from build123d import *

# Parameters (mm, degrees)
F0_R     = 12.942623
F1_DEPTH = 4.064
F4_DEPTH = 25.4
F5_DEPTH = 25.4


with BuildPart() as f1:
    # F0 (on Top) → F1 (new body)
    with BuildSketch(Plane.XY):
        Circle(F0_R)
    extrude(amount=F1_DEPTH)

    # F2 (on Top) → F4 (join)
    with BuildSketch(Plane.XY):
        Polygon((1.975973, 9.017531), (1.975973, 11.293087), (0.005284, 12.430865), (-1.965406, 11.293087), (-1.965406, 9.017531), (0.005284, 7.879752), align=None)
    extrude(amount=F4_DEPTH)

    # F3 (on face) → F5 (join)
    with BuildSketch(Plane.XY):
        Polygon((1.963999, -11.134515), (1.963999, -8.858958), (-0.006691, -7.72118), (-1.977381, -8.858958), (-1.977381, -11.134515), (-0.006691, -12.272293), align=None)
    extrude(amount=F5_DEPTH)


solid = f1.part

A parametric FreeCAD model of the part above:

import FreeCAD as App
import Part
import Sketcher
from FreeCAD import Vector
Q = App.Units.Quantity


def add_polygon(sketch, points):
    """Adds a closed chain of lines whose ends are joined by coincident constraints."""
    first, n = sketch.GeometryCount, len(points)
    for a, b in zip(points, points[1:] + points[:1]):
        sketch.addGeometry(Part.LineSegment(App.Vector(*a, 0), App.Vector(*b, 0)), False)
    for i in range(n):
        sketch.addConstraint(Sketcher.Constraint("Coincident", first + i, 2, first + (i + 1) % n, 1))

doc = App.newDocument("Part")
body = doc.addObject("PartDesign::Body", "Body")

# Sketch on XY plane
sketch1 = body.newObject("Sketcher::SketchObject", "Sketch")
sketch1.AttachmentSupport = (doc.getObject("XY_Plane"), [""])
sketch1.MapMode = "FlatFace"
sketch1.addGeometry(Part.Circle(Vector(0, 0, 0), Vector(0, 0, 1), 12.942623), False)
sketch1.addConstraint([
    Sketcher.Constraint("Coincident", 0, 3, -1, 1),
    Sketcher.Constraint("Diameter", 0, 25.885246),
])
pad1 = body.newObject("PartDesign::Pad", "Pad")
pad1.Profile = sketch1
pad1.Length = Q("0.16 in")

# Sketch on XY plane
sketch2 = body.newObject("Sketcher::SketchObject", "Sketch001")
sketch2.AttachmentSupport = (doc.getObject("XY_Plane"), [""])
sketch2.MapMode = "FlatFace"
add_polygon(sketch2, [(1.975973, 9.017531), (1.975973, 11.293087), (0.005284, 12.430865), (-1.965406, 11.293087), (-1.965406, 9.017531), (0.005284, 7.879752)])  # lines 0-5
sketch2.addConstraint([
    Sketcher.Constraint("Vertical", 0),
    Sketcher.Constraint("Vertical", 3),
    Sketcher.Constraint("Parallel", 1, 4),
    Sketcher.Constraint("Parallel", 2, 5),
    Sketcher.Constraint("Horizontal", 0, 2, 2, 2),
    Sketcher.Constraint("Horizontal", 3, 2, 5, 2),
    Sketcher.Constraint("Vertical", 1, 2, 4, 2),
    Sketcher.Constraint("Angle", 1, Q("149.999996 deg")),
    Sketcher.Constraint("DistanceY", 0, 1, 0, 2, 2.275556),
    Sketcher.Constraint("DistanceY", -1, 1, 3, 2, 9.017531),
    Sketcher.Constraint("DistanceX", 1, 2, 0, 2, 1.970689),
    Sketcher.Constraint("DistanceX", -1, 1, 0, 2, 1.975973),
])
pad2 = body.newObject("PartDesign::Pad", "Pad001")
pad2.Profile = sketch2
pad2.Length = Q("1 in")

# Sketch on XY plane
sketch3 = body.newObject("Sketcher::SketchObject", "Sketch002")
sketch3.AttachmentSupport = (doc.getObject("XY_Plane"), [""])
sketch3.MapMode = "FlatFace"
add_polygon(sketch3, [(1.963999, -11.134515), (1.963999, -8.858958), (-0.006691, -7.72118), (-1.977381, -8.858958), (-1.977381, -11.134515), (-0.006691, -12.272293)])  # lines 0-5
sketch3.addConstraint([
    Sketcher.Constraint("Vertical", 0),
    Sketcher.Constraint("Vertical", 3),
    Sketcher.Constraint("Parallel", 1, 4),
    Sketcher.Constraint("Parallel", 2, 5),
    Sketcher.Constraint("Horizontal", 0, 2, 2, 2),
    Sketcher.Constraint("Horizontal", 3, 2, 5, 2),
    Sketcher.Constraint("Vertical", 1, 2, 4, 2),
    Sketcher.Constraint("Angle", 1, Q("150.000009 deg")),
    Sketcher.Constraint("DistanceX", -1, 1, 0, 2, 1.963999),
    Sketcher.Constraint("DistanceY", 0, 1, 0, 2, 2.275557),
    Sketcher.Constraint("DistanceX", 1, 2, -1, 1, 0.006691),
    Sketcher.Constraint("DistanceY", 1, 2, -1, 1, 7.72118),
])
pad3 = body.newObject("PartDesign::Pad", "Pad002")
pad3.Profile = sketch3
pad3.Length = Q("1 in")

doc.recompute()
